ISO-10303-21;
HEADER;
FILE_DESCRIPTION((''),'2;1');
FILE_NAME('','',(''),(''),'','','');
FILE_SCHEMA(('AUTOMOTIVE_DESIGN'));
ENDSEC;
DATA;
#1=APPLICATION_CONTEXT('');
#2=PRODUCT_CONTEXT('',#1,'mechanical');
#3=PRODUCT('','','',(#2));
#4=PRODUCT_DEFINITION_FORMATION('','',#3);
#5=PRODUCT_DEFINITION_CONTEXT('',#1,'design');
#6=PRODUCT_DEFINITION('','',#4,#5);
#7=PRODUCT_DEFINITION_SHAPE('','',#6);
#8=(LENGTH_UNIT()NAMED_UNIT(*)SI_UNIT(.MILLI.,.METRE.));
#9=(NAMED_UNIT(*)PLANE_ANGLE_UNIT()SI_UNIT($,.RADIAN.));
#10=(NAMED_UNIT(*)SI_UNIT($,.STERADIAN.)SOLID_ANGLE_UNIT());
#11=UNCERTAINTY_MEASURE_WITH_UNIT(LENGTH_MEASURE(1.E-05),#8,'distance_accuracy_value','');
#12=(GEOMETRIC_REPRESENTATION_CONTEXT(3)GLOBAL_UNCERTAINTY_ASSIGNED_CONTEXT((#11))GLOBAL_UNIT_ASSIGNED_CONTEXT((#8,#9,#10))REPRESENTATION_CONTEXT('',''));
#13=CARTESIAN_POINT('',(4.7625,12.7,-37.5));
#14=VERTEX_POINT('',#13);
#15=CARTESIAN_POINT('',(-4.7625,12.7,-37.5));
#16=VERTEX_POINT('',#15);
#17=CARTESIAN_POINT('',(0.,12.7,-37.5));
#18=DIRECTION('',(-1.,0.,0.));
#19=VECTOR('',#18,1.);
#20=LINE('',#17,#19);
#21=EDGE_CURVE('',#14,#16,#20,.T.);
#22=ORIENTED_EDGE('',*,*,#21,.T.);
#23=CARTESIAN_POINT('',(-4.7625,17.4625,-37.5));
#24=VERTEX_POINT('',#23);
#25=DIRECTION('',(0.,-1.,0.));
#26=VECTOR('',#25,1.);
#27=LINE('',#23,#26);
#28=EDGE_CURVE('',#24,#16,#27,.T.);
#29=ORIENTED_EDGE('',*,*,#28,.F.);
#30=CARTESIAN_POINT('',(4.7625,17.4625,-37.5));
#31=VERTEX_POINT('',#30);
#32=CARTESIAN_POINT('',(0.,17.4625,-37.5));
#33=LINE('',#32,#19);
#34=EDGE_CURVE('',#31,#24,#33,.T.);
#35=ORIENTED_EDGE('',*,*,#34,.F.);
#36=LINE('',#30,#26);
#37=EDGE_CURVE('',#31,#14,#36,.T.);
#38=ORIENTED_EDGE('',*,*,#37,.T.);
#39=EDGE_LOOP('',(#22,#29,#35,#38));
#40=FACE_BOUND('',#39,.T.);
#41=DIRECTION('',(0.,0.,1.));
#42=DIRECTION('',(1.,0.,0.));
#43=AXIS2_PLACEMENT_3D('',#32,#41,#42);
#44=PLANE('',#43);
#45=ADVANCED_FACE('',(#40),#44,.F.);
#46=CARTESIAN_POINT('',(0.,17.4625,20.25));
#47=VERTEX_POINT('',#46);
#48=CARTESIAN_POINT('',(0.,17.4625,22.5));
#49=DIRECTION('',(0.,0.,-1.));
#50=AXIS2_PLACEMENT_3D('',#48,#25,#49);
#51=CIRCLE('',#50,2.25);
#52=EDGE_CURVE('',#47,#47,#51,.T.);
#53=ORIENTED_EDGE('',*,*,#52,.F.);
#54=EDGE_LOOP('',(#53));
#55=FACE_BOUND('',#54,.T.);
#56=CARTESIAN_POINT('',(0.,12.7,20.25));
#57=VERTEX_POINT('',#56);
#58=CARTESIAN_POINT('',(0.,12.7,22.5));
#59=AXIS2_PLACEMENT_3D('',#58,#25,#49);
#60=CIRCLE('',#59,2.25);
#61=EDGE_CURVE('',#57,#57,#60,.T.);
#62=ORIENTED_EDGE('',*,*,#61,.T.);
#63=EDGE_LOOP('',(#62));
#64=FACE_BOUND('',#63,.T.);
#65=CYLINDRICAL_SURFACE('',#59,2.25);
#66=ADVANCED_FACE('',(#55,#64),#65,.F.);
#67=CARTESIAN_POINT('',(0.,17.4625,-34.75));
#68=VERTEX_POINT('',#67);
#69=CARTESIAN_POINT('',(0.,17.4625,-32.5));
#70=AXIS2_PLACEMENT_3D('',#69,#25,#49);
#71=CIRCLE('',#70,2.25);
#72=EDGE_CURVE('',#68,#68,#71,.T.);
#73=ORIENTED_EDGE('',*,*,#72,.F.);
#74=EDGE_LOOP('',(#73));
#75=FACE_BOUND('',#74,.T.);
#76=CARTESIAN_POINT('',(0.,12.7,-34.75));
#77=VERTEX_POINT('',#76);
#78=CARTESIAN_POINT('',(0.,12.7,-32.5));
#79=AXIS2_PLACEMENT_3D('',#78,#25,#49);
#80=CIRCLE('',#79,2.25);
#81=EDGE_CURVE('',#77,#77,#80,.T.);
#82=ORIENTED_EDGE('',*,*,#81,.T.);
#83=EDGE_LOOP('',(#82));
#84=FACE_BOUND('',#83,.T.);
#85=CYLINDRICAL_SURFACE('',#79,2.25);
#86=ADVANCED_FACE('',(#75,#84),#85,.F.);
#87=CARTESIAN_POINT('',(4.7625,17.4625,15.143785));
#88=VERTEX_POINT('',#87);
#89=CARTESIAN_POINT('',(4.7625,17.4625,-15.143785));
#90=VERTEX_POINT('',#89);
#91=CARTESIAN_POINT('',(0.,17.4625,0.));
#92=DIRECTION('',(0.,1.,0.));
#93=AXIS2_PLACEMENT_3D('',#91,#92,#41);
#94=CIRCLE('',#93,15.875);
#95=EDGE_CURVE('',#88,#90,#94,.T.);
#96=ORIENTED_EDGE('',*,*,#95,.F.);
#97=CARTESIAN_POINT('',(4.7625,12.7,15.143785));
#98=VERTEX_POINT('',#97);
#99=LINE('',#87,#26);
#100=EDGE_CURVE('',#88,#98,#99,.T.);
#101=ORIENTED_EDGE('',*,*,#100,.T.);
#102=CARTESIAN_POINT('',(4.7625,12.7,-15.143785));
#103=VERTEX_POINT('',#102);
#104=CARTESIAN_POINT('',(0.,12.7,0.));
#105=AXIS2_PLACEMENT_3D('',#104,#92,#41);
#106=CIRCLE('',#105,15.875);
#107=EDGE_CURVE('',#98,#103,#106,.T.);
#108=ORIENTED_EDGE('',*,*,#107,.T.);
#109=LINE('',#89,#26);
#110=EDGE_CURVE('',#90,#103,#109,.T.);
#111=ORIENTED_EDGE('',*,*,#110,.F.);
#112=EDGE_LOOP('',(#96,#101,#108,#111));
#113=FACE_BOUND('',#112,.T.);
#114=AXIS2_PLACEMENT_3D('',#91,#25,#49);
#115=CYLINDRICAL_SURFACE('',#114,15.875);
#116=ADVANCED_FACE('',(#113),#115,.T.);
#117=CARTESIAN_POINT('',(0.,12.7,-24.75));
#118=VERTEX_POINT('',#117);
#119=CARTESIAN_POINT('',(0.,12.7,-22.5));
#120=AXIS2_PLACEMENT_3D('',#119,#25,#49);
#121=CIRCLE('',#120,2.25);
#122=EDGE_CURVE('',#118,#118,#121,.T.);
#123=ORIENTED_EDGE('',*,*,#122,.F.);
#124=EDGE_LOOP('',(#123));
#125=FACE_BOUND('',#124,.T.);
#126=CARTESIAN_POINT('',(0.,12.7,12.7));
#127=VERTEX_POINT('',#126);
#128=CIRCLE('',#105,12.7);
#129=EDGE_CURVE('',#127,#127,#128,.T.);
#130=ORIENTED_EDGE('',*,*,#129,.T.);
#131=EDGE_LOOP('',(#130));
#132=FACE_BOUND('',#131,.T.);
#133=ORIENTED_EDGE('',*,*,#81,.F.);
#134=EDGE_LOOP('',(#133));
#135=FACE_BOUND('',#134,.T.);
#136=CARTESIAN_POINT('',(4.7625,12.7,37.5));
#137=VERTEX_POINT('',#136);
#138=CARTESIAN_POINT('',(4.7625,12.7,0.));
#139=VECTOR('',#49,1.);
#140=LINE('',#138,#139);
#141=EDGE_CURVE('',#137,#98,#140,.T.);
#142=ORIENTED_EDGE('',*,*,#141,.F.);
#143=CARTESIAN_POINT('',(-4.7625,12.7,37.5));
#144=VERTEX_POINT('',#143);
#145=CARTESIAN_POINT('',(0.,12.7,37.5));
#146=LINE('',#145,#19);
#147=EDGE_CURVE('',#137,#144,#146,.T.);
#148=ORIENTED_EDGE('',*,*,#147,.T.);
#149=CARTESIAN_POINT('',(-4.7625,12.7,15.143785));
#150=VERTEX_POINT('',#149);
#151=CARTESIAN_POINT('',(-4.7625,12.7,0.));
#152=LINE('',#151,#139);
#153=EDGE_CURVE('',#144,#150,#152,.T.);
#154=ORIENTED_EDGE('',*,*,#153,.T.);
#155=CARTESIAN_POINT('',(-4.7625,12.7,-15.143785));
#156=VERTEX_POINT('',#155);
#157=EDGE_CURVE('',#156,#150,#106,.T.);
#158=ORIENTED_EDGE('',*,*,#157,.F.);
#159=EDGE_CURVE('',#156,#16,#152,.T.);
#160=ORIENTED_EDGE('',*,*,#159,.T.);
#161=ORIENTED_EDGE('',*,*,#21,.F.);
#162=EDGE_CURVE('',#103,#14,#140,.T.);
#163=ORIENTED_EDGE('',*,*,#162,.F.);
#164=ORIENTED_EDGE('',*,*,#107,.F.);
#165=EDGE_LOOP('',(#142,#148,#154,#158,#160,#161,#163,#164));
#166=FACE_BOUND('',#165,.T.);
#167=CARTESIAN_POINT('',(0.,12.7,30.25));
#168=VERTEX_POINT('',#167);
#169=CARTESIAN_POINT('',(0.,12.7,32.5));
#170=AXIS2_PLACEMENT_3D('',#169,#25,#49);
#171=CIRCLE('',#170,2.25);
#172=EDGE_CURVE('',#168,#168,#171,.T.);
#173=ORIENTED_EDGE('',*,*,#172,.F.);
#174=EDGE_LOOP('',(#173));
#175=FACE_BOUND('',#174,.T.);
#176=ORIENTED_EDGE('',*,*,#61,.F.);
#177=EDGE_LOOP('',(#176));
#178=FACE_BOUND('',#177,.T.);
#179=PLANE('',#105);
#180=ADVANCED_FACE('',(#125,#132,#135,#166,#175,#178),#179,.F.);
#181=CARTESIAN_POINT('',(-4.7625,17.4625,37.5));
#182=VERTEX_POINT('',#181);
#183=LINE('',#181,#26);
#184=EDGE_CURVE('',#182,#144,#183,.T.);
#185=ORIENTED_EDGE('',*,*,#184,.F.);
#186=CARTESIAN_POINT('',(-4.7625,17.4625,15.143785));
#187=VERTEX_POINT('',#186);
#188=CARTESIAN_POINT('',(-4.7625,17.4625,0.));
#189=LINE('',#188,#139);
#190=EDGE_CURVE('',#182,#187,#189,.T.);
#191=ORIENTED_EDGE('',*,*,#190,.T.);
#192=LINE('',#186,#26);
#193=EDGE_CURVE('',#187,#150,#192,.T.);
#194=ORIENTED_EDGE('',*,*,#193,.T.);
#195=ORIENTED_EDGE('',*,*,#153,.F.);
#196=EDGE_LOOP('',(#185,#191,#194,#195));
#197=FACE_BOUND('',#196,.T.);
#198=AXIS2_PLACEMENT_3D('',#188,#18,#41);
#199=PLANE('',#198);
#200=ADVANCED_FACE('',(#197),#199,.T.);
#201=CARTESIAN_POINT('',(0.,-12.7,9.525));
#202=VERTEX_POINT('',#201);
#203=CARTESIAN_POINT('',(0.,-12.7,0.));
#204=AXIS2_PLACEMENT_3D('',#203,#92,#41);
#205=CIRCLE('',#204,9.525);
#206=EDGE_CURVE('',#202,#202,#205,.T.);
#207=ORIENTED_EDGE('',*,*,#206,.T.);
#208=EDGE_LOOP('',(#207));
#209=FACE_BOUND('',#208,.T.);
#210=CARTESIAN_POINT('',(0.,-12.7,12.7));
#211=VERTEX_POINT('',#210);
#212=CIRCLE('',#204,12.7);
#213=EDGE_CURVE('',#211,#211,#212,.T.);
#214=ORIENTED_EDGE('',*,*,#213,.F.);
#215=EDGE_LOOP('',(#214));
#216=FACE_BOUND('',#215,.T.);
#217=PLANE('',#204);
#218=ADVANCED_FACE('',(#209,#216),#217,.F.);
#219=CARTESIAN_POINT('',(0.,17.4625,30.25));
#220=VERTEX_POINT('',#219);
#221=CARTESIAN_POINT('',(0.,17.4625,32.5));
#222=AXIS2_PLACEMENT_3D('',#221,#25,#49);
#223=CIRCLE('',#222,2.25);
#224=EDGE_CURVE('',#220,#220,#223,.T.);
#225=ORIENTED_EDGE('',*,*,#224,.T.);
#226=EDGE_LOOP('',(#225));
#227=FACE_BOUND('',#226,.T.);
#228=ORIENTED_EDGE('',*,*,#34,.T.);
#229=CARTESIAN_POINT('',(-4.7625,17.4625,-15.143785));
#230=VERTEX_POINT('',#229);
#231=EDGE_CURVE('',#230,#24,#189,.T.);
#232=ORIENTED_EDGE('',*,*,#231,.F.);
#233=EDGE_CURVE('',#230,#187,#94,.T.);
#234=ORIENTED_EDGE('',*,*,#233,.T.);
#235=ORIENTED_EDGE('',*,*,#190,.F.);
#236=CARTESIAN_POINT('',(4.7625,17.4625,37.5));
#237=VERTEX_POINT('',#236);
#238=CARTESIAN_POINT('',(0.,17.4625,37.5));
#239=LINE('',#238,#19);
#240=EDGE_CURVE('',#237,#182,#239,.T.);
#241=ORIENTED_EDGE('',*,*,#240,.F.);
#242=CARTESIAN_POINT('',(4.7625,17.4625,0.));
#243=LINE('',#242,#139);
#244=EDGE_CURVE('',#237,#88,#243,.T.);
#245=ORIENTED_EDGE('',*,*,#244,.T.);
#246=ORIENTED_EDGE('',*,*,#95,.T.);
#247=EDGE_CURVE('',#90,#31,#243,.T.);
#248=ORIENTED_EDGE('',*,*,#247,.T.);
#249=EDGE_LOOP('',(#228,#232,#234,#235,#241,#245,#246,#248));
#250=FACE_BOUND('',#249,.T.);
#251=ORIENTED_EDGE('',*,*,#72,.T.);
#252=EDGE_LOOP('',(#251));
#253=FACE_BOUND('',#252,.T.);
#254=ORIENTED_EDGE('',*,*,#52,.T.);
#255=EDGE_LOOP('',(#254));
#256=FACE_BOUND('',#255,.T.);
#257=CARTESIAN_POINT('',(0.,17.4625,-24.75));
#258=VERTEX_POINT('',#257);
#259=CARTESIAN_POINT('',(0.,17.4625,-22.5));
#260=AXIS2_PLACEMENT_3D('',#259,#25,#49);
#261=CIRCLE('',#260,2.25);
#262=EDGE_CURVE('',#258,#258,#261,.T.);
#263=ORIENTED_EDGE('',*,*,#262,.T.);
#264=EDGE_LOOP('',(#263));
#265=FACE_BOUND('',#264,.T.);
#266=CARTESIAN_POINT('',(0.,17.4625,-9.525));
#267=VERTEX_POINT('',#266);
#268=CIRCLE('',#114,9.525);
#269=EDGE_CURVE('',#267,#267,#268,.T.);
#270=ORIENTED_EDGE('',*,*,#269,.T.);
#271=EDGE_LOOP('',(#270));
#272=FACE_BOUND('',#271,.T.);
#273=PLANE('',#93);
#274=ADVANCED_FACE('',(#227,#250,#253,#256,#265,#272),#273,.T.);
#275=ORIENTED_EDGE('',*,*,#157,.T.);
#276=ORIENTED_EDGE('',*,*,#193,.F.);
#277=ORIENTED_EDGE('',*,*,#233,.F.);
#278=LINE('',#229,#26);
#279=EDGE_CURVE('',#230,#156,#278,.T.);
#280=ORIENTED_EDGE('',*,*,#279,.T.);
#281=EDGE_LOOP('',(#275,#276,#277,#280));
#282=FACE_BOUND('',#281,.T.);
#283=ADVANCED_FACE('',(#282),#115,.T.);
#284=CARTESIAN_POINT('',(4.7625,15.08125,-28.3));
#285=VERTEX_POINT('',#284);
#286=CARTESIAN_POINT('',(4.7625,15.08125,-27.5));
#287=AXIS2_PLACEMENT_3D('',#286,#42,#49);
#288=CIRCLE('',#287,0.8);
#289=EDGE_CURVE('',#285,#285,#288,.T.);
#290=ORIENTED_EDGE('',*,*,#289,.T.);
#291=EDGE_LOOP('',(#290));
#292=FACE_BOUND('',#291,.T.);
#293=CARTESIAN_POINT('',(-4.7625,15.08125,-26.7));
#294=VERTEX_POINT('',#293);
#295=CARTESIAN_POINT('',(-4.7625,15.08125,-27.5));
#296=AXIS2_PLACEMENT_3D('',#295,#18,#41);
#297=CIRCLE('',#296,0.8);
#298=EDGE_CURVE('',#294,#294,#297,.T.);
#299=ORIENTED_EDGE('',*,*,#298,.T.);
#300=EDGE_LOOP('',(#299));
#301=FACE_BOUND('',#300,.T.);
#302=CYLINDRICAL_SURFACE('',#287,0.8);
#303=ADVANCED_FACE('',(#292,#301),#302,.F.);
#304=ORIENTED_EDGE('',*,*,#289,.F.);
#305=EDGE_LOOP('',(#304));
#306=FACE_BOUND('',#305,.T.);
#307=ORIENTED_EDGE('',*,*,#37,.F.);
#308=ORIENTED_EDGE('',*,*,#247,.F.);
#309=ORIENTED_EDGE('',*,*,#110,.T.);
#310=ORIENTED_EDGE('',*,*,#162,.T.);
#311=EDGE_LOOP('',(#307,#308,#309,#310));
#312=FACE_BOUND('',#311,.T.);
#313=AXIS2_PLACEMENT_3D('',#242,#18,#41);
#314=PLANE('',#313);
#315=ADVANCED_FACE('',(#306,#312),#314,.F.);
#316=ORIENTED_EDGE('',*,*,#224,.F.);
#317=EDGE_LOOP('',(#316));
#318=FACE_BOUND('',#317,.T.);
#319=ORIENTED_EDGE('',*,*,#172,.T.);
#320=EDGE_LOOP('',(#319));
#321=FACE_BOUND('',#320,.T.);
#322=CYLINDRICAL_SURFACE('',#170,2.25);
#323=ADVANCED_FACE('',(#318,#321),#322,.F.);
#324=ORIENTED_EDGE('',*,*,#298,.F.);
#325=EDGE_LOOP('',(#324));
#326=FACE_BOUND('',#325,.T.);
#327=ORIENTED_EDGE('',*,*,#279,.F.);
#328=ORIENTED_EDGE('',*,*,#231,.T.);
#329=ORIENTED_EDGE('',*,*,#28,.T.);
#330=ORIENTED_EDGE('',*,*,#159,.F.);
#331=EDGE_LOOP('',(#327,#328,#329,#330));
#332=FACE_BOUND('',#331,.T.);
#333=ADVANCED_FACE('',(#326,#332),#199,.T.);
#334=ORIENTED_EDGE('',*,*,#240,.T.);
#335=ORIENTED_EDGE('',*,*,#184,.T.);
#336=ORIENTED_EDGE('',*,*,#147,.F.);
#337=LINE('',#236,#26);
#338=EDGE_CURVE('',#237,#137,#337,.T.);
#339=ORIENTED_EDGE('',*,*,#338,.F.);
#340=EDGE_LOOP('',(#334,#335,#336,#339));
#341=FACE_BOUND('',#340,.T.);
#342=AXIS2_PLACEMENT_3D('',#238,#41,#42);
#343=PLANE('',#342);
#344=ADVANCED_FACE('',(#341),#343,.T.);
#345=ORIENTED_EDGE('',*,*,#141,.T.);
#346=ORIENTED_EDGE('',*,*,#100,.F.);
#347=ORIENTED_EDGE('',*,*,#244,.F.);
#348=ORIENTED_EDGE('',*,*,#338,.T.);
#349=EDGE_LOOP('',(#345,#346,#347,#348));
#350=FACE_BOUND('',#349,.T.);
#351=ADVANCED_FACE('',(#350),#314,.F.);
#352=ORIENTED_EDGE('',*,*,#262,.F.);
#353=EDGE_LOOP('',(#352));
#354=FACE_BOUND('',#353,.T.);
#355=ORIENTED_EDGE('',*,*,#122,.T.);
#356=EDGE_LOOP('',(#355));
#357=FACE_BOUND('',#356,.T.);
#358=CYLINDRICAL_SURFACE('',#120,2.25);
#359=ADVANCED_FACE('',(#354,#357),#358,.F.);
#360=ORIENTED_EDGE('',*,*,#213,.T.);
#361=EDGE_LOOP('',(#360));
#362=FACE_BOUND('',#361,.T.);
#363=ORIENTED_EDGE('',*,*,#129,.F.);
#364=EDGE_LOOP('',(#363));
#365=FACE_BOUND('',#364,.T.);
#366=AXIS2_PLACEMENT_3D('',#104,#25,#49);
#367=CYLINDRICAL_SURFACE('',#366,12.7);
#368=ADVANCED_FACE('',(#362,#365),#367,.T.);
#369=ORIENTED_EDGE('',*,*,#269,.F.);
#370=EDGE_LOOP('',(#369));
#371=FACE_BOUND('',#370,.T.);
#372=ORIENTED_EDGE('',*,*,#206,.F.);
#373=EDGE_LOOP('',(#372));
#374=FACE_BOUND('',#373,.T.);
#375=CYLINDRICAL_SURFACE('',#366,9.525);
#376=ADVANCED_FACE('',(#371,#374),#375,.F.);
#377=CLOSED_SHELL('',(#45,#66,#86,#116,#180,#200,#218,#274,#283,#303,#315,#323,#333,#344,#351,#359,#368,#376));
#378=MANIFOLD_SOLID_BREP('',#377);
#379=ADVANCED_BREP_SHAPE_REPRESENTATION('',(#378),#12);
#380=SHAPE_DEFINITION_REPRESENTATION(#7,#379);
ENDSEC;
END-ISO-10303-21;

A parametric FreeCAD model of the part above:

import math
import FreeCAD as App
import Part
import Sketcher
from FreeCAD import Vector
Q = App.Units.Quantity

doc = App.newDocument("Part")
body = doc.addObject("PartDesign::Body", "Body")

# Sketch on XZ plane
sketch1 = body.newObject("Sketcher::SketchObject", "Sketch")
sketch1.AttachmentSupport = (doc.getObject("XZ_Plane"), [""])
sketch1.MapMode = "FlatFace"
sketch1.addGeometry(Part.Circle(Vector(0, 0, 0), Vector(0, 0, 1), 12.7), False)
sketch1.addGeometry(Part.Circle(Vector(0, 0, 0), Vector(0, 0, 1), 9.525), False)
sketch1.addConstraint(Sketcher.Constraint("Coincident", 0, 3, -1, 1))
sketch1.addConstraint(Sketcher.Constraint("Coincident", 1, 3, -1, 1))
sketch1.addConstraint(Sketcher.Constraint("Diameter", 0, Q("1 in")))
sketch1.addConstraint(Sketcher.Constraint("Diameter", 1, Q("0.75 in")))
pad1 = body.newObject("PartDesign::Pad", "Pad")
pad1.Profile = sketch1
pad1.Length = Q("1 in")
pad1.Midplane = True

# Sketch on XZ plane
sketch2 = body.newObject("Sketcher::SketchObject", "Sketch001")
sketch2.AttachmentSupport = (doc.getObject("XZ_Plane"), [""])
sketch2.MapMode = "FlatFace"
sketch2.AttachmentOffset = App.Placement(Vector(0, 0, -0.5 * 25.4), App.Rotation())
sketch2.addGeometry(Part.LineSegment(Vector(-4.7625, 15.143785, 0), Vector(-4.7625, 37.5, 0)), False)
sketch2.addGeometry(Part.LineSegment(Vector(-4.7625, 37.5, 0), Vector(4.7625, 37.5, 0)), False)
sketch2.addGeometry(Part.LineSegment(Vector(4.7625, 37.5, 0), Vector(4.7625, 15.143785, 0)), False)
sketch2.addGeometry(Part.ArcOfCircle(Part.Circle(Vector(0, 0, 0), Vector(0, 0, 1), 15.875), math.radians(0), math.radians(72.542397)), False)
sketch2.addGeometry(Part.ArcOfCircle(Part.Circle(Vector(0, 0, 0), Vector(0, 0, 1), 15.875), math.radians(-72.542397), math.radians(0)), False)
sketch2.addGeometry(Part.LineSegment(Vector(4.7625, -15.143785, 0), Vector(4.7625, -37.5, 0)), False)
sketch2.addGeometry(Part.LineSegment(Vector(4.7625, -37.5, 0), Vector(-4.7625, -37.5, 0)), False)
sketch2.addGeometry(Part.LineSegment(Vector(-4.7625, -37.5, 0), Vector(-4.7625, -15.143785, 0)), False)
sketch2.addGeometry(Part.ArcOfCircle(Part.Circle(Vector(0, 0, 0), Vector(0, 0, 1), 15.875), math.radians(107.457603), math.radians(252.542397)), False)
sketch2.addConstraint(Sketcher.Constraint("Coincident", 0, 2, 1, 1))
sketch2.addConstraint(Sketcher.Constraint("Coincident", 1, 2, 2, 1))
sketch2.addConstraint(Sketcher.Constraint("Coincident", 2, 2, 3, 2))
sketch2.addConstraint(Sketcher.Constraint("Tangent", 3, 1, 4, 2))
sketch2.addConstraint(Sketcher.Constraint("Coincident", 4, 1, 5, 1))
sketch2.addConstraint(Sketcher.Constraint("Coincident", 5, 2, 6, 1))
sketch2.addConstraint(Sketcher.Constraint("Coincident", 6, 2, 7, 1))
sketch2.addConstraint(Sketcher.Constraint("Coincident", 7, 2, 8, 2))
sketch2.addConstraint(Sketcher.Constraint("Coincident", 8, 1, 0, 1))
sketch2.addConstraint(Sketcher.Constraint("Vertical", 0))
sketch2.addConstraint(Sketcher.Constraint("Horizontal", 1))
sketch2.addConstraint(Sketcher.Constraint("Vertical", 2))
sketch2.addConstraint(Sketcher.Constraint("Vertical", 5))
sketch2.addConstraint(Sketcher.Constraint("Horizontal", 6))
sketch2.addConstraint(Sketcher.Constraint("Vertical", 7))
sketch2.addConstraint(Sketcher.Constraint("Coincident", 3, 3, -1, 1))
sketch2.addConstraint(Sketcher.Constraint("Coincident", 8, 3, -1, 1))
sketch2.addConstraint(Sketcher.Constraint("Equal", 3, 4))
sketch2.addConstraint(Sketcher.Constraint("Equal", 4, 8))
sketch2.addConstraint(Sketcher.Constraint("Symmetric", 0, 2, 5, 2, -1, 1))
sketch2.addConstraint(Sketcher.Constraint("PointOnObject", 3, 1, -1))
sketch2.addConstraint(Sketcher.Constraint("Horizontal", 4, 1, 7, 2))
sketch2.addConstraint(Sketcher.Constraint("Horizontal", 2, 2, 8, 1))
sketch2.addConstraint(Sketcher.Constraint("Radius", 3, Q("0.625 in")))
sketch2.addConstraint(Sketcher.Constraint("DistanceX", 1, 1, 1, 2, Q("0.375 in")))
sketch2.addConstraint(Sketcher.Constraint("DistanceY", -1, 1, 0, 2, Q("37.5 mm")))
pad2 = body.newObject("PartDesign::Pad", "Pad001")
pad2.Profile = sketch2
pad2.Length = Q("0.1875 in")
pad2.Reversed = True

# Sketch on XZ plane
sketch3 = body.newObject("Sketcher::SketchObject", "Sketch002")
sketch3.AttachmentSupport = (doc.getObject("XZ_Plane"), [""])
sketch3.MapMode = "FlatFace"
sketch3.AttachmentOffset = App.Placement(Vector(0, 0, -0.5 * 25.4), App.Rotation())
sketch3.addGeometry(Part.Circle(Vector(0, 0, 0), Vector(0, 0, 1), 9.525), False)
sketch3.addConstraint(Sketcher.Constraint("Coincident", 0, 3, -1, 1))
sketch3.addConstraint(Sketcher.Constraint("Diameter", 0, Q("0.75 in")))
pocket1 = body.newObject("PartDesign::Pocket", "Pocket")
pocket1.Profile = sketch3
pocket1.Type = "ThroughAll"

# Sketch on XZ plane
sketch4 = body.newObject("Sketcher::SketchObject", "Sketch003")
sketch4.AttachmentSupport = (doc.getObject("XZ_Plane"), [""])
sketch4.MapMode = "FlatFace"
sketch4.AttachmentOffset = App.Placement(Vector(0, 0, -0.5 * 25.4), App.Rotation())
sketch4.addGeometry(Part.Circle(Vector(0, -32.5, 0), Vector(0, 0, 1), 2.25), False)
sketch4.addGeometry(Part.Circle(Vector(0, -22.5, 0), Vector(0, 0, 1), 2.25), False)
sketch4.addGeometry(Part.Circle(Vector(0, 22.5, 0), Vector(0, 0, 1), 2.25), False)
sketch4.addGeometry(Part.Circle(Vector(0, 32.5, 0), Vector(0, 0, 1), 2.25), False)
sketch4.addConstraint(Sketcher.Constraint("Equal", 0, 1))
sketch4.addConstraint(Sketcher.Constraint("Equal", 1, 2))
sketch4.addConstraint(Sketcher.Constraint("Equal", 2, 3))
sketch4.addConstraint(Sketcher.Constraint("Symmetric", 1, 3, 2, 3, -1, 1))
sketch4.addConstraint(Sketcher.Constraint("Symmetric", 0, 3, 3, 3, -1, 1))
sketch4.addConstraint(Sketcher.Constraint("PointOnObject", 0, 3, -2))
sketch4.addConstraint(Sketcher.Constraint("PointOnObject", 1, 3, -2))
sketch4.addConstraint(Sketcher.Constraint("Diameter", 0, Q("4.5 mm")))
sketch4.addConstraint(Sketcher.Constraint("DistanceY", 0, 3, -1, 1, Q("32.5 mm")))
sketch4.addConstraint(Sketcher.Constraint("DistanceY", 1, 3, -1, 1, Q("22.5 mm")))
doc.recompute()
hole = body.newObject("PartDesign::Hole", "Hole")
hole.Profile = sketch4
hole.ThreadType = "None"
hole.Diameter = 4.5
hole.DepthType = "ThroughAll"

# Sketch on YZ plane
sketch5 = body.newObject("Sketcher::SketchObject", "Sketch004")
sketch5.AttachmentSupport = (doc.getObject("YZ_Plane"), [""])
sketch5.MapMode = "FlatFace"
sketch5.AttachmentOffset = App.Placement(Vector(0, 0, 0.1875 * 25.4), App.Rotation())
sketch5.addGeometry(Part.Circle(Vector(15.08125, -27.5, 0), Vector(0, 0, 1), 0.8), False)
sketch5.addConstraint(Sketcher.Constraint("Diameter", 0, Q("1.6 mm")))
sketch5.addConstraint(Sketcher.Constraint("DistanceX", -1, 1, 0, 3, Q("0.59375 in")))
sketch5.addConstraint(Sketcher.Constraint("DistanceY", 0, 3, -1, 1, Q("27.5 mm")))
doc.recompute()
hole2 = body.newObject("PartDesign::Hole", "Hole001")
hole2.Profile = sketch5
hole2.ThreadType = "None"
hole2.Diameter = 1.6
hole2.DepthType = "ThroughAll"

doc.recompute()
